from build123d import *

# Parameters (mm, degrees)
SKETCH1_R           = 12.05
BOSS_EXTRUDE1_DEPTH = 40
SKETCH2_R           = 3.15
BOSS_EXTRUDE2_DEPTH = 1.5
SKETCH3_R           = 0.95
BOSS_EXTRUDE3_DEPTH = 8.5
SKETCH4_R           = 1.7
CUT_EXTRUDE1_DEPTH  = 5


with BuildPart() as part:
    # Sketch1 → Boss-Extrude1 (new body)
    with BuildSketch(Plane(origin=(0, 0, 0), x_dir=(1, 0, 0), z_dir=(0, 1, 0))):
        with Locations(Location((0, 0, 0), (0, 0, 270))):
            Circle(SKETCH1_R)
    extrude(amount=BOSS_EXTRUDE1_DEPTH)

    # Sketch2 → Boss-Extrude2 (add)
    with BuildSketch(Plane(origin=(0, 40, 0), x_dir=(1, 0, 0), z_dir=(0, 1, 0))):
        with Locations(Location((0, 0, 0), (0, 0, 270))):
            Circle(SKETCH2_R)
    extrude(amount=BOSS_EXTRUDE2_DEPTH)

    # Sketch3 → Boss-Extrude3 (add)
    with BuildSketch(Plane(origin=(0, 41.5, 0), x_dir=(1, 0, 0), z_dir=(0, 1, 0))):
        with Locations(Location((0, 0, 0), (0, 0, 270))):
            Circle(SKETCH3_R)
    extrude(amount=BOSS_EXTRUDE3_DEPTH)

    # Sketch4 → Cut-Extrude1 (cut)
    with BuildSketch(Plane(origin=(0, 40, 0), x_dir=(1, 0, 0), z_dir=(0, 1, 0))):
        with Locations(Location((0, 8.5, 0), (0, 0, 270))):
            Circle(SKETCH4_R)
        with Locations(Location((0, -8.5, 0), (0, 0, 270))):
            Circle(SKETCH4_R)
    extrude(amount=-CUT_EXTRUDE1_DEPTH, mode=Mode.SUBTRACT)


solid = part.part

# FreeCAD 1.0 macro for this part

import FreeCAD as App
import Part
import Sketcher

doc = App.newDocument("Part")
body = doc.addObject("PartDesign::Body", "Body")

# Sketch on XZ plane
sketch1 = doc.addObject("Sketcher::SketchObject", "Sketch")
body.addObject(sketch1)
sketch1.AttachmentSupport = (doc.XZ_Plane, [""])
sketch1.MapMode = "FlatFace"
sketch1.addGeometry(Part.Circle(App.Vector(0, 0, 0), App.Vector(0, 0, 1), 12), False)
sketch1.addConstraint([
    Sketcher.Constraint("Coincident", 0, 3, -1, 1),
    Sketcher.Constraint("Diameter", 0, 24.1),
])
pad1 = doc.addObject("PartDesign::Pad", "Pad")
body.addObject(pad1)
pad1.Profile = sketch1
pad1.Length = 40
pad1.Reversed = True

# Sketch on XZ plane
sketch2 = doc.addObject("Sketcher::SketchObject", "Sketch001")
body.addObject(sketch2)
sketch2.AttachmentSupport = (doc.XZ_Plane, [""])
sketch2.MapMode = "FlatFace"
sketch2.AttachmentOffset = App.Placement(App.Vector(0, 0, -40), App.Rotation())
sketch2.addGeometry(Part.Circle(App.Vector(0, 0, 0), App.Vector(0, 0, 1), 3.1), False)
sketch2.addConstraint([
    Sketcher.Constraint("Coincident", 0, 3, -1, 1),
    Sketcher.Constraint("Diameter", 0, 6.3),
])
pad2 = doc.addObject("PartDesign::Pad", "Pad001")
body.addObject(pad2)
pad2.Profile = sketch2
pad2.Length = 1.5
pad2.Reversed = True

# Sketch on XZ plane
sketch3 = doc.addObject("Sketcher::SketchObject", "Sketch002")
body.addObject(sketch3)
sketch3.AttachmentSupport = (doc.XZ_Plane, [""])
sketch3.MapMode = "FlatFace"
sketch3.AttachmentOffset = App.Placement(App.Vector(0, 0, -41.5), App.Rotation())
sketch3.addGeometry(Part.Circle(App.Vector(0, 0, 0), App.Vector(0, 0, 1), 0.9), False)
sketch3.addConstraint([
    Sketcher.Constraint("Coincident", 0, 3, -1, 1),
    Sketcher.Constraint("Diameter", 0, 1.9),
])
pad3 = doc.addObject("PartDesign::Pad", "Pad002")
body.addObject(pad3)
pad3.Profile = sketch3
pad3.Length = 8.5
pad3.Reversed = True

# Sketch on XZ plane
sketch4 = doc.addObject("Sketcher::SketchObject", "Sketch003")
body.addObject(sketch4)
sketch4.AttachmentSupport = (doc.XZ_Plane, [""])
sketch4.MapMode = "FlatFace"
sketch4.AttachmentOffset = App.Placement(App.Vector(0, 0, -40), App.Rotation())
sketch4.addGeometry([
    Part.Circle(App.Vector(0, -8.5, 0), App.Vector(0, 0, 1), 1.7),
    Part.Circle(App.Vector(0, 8.5, 0), App.Vector(0, 0, 1), 1.7),
], False)
sketch4.addConstraint([
    Sketcher.Constraint("Equal", 0, 1),
    Sketcher.Constraint("Symmetric", 0, 3, 1, 3, -1, 1),
    Sketcher.Constraint("PointOnObject", 0, 3, -2),
    Sketcher.Constraint("Diameter", 0, 3.4),
    Sketcher.Constraint("DistanceY", 0, 3, 1, 3, 17.0),
])
pocket1 = doc.addObject("PartDesign::Pocket", "Pocket")
body.addObject(pocket1)
pocket1.Profile = sketch4
pocket1.Length = 5
pocket1.Reversed = True

doc.recompute()
